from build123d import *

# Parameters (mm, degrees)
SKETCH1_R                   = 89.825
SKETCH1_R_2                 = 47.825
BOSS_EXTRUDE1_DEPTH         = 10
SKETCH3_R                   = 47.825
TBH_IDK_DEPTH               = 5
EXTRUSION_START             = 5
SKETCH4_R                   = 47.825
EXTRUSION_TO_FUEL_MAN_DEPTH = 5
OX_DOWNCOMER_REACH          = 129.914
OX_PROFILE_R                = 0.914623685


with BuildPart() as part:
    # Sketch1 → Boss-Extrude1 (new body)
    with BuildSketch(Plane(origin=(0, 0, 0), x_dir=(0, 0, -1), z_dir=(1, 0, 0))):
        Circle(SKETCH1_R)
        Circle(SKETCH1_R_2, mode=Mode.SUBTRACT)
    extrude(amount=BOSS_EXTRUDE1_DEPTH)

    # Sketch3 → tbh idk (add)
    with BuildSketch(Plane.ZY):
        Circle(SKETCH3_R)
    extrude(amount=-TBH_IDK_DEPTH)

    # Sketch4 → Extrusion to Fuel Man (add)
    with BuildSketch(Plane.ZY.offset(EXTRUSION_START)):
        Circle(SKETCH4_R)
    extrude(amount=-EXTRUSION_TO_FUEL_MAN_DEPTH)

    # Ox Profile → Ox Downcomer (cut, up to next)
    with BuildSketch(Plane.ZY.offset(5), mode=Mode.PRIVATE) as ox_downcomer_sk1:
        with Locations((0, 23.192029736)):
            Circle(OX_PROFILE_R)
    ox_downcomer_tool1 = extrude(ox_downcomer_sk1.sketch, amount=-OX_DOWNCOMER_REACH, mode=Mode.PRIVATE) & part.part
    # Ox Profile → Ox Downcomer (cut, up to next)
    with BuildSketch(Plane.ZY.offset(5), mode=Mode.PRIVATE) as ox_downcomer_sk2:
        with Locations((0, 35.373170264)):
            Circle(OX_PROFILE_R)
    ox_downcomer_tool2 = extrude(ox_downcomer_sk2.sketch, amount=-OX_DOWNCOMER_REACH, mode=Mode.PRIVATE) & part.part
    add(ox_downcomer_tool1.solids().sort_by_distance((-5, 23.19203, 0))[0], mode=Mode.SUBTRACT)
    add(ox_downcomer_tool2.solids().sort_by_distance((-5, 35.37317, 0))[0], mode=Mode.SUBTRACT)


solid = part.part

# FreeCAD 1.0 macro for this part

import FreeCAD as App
import Part
import Sketcher

V = App.Vector
Q = App.Units.Quantity

doc = App.newDocument("Part")
body = doc.addObject("PartDesign::Body", "Body")

sketch1 = doc.addObject("Sketcher::SketchObject", "Sketch")
body.addObject(sketch1)
sketch1.AttachmentSupport = (doc.YZ_Plane, [""])
sketch1.MapMode = "FlatFace"
sketch1.addGeometry([
    Part.Circle(V(0, 0, 0), V(0, 0, 1), 89.825),
    Part.Circle(V(0, 0, 0), V(0, 0, 1), 47.825),
], False)
sketch1.addConstraint([
    Sketcher.Constraint("Coincident", 0, 3, -1, 1),
    Sketcher.Constraint("Coincident", 1, 3, -1, 1),
    Sketcher.Constraint("Diameter", 0, Q("179.65 mm")),
    Sketcher.Constraint("Diameter", 1, Q("95.65 mm")),
])
pad1 = doc.addObject("PartDesign::Pad", "Pad")
body.addObject(pad1)
pad1.Profile = sketch1
pad1.Length = 10

sketch2 = doc.addObject("Sketcher::SketchObject", "Sketch001")
body.addObject(sketch2)
sketch2.AttachmentSupport = (doc.YZ_Plane, [""])
sketch2.MapMode = "FlatFace"
sketch2.addGeometry(Part.Circle(V(0, 0, 0), V(0, 0, 1), 47.825), False)
sketch2.addConstraint([
    Sketcher.Constraint("Coincident", 0, 3, -1, 1),
    Sketcher.Constraint("Diameter", 0, Q("95.65 mm")),
])
pad2 = doc.addObject("PartDesign::Pad", "Pad001")
body.addObject(pad2)
pad2.Profile = sketch2
pad2.Length = 5

sketch3 = doc.addObject("Sketcher::SketchObject", "Sketch002")
body.addObject(sketch3)
sketch3.AttachmentSupport = (doc.YZ_Plane, [""])
sketch3.MapMode = "FlatFace"
sketch3.AttachmentOffset = App.Placement(V(0, 0, -5), App.Rotation())
sketch3.addGeometry(Part.Circle(V(0, 0, 0), V(0, 0, 1), 47.825), False)
sketch3.addConstraint([
    Sketcher.Constraint("Coincident", 0, 3, -1, 1),
    Sketcher.Constraint("Diameter", 0, Q("95.65 mm")),
])
pad3 = doc.addObject("PartDesign::Pad", "Pad002")
body.addObject(pad3)
pad3.Profile = sketch3
pad3.Length = 5

sketch4 = doc.addObject("Sketcher::SketchObject", "Sketch003")
body.addObject(sketch4)
sketch4.AttachmentSupport = (doc.YZ_Plane, [""])
sketch4.MapMode = "FlatFace"
sketch4.AttachmentOffset = App.Placement(V(0, 0, -5), App.Rotation())
sketch4.addGeometry(Part.Circle(V(23.19203, 0, 0), V(0, 0, 1), 0.914624), False)
sketch4.addConstraint([
    Sketcher.Constraint("PointOnObject", 0, 3, -1),
    Sketcher.Constraint("Diameter", 0, Q("1.829247 mm")),
    Sketcher.Constraint("DistanceX", -1, 1, 0, 3, Q("23.19203 mm")),
])
pocket1 = doc.addObject("PartDesign::Pocket", "Pocket")
body.addObject(pocket1)
pocket1.Profile = sketch4
pocket1.Type = "UpToFirst"
pocket1.Reversed = True

sketch5 = doc.addObject("Sketcher::SketchObject", "Sketch004")
body.addObject(sketch5)
sketch5.AttachmentSupport = (doc.YZ_Plane, [""])
sketch5.MapMode = "FlatFace"
sketch5.AttachmentOffset = App.Placement(V(0, 0, -5), App.Rotation())
sketch5.addGeometry(Part.Circle(V(35.37317, 0, 0), V(0, 0, 1), 0.914624), False)
sketch5.addConstraint([
    Sketcher.Constraint("PointOnObject", 0, 3, -1),
    Sketcher.Constraint("Diameter", 0, Q("1.829247 mm")),
    Sketcher.Constraint("DistanceX", -1, 1, 0, 3, Q("35.37317 mm")),
])
pocket2 = doc.addObject("PartDesign::Pocket", "Pocket001")
body.addObject(pocket2)
pocket2.Profile = sketch5
pocket2.Type = "UpToFirst"
pocket2.Reversed = True

doc.recompute()
